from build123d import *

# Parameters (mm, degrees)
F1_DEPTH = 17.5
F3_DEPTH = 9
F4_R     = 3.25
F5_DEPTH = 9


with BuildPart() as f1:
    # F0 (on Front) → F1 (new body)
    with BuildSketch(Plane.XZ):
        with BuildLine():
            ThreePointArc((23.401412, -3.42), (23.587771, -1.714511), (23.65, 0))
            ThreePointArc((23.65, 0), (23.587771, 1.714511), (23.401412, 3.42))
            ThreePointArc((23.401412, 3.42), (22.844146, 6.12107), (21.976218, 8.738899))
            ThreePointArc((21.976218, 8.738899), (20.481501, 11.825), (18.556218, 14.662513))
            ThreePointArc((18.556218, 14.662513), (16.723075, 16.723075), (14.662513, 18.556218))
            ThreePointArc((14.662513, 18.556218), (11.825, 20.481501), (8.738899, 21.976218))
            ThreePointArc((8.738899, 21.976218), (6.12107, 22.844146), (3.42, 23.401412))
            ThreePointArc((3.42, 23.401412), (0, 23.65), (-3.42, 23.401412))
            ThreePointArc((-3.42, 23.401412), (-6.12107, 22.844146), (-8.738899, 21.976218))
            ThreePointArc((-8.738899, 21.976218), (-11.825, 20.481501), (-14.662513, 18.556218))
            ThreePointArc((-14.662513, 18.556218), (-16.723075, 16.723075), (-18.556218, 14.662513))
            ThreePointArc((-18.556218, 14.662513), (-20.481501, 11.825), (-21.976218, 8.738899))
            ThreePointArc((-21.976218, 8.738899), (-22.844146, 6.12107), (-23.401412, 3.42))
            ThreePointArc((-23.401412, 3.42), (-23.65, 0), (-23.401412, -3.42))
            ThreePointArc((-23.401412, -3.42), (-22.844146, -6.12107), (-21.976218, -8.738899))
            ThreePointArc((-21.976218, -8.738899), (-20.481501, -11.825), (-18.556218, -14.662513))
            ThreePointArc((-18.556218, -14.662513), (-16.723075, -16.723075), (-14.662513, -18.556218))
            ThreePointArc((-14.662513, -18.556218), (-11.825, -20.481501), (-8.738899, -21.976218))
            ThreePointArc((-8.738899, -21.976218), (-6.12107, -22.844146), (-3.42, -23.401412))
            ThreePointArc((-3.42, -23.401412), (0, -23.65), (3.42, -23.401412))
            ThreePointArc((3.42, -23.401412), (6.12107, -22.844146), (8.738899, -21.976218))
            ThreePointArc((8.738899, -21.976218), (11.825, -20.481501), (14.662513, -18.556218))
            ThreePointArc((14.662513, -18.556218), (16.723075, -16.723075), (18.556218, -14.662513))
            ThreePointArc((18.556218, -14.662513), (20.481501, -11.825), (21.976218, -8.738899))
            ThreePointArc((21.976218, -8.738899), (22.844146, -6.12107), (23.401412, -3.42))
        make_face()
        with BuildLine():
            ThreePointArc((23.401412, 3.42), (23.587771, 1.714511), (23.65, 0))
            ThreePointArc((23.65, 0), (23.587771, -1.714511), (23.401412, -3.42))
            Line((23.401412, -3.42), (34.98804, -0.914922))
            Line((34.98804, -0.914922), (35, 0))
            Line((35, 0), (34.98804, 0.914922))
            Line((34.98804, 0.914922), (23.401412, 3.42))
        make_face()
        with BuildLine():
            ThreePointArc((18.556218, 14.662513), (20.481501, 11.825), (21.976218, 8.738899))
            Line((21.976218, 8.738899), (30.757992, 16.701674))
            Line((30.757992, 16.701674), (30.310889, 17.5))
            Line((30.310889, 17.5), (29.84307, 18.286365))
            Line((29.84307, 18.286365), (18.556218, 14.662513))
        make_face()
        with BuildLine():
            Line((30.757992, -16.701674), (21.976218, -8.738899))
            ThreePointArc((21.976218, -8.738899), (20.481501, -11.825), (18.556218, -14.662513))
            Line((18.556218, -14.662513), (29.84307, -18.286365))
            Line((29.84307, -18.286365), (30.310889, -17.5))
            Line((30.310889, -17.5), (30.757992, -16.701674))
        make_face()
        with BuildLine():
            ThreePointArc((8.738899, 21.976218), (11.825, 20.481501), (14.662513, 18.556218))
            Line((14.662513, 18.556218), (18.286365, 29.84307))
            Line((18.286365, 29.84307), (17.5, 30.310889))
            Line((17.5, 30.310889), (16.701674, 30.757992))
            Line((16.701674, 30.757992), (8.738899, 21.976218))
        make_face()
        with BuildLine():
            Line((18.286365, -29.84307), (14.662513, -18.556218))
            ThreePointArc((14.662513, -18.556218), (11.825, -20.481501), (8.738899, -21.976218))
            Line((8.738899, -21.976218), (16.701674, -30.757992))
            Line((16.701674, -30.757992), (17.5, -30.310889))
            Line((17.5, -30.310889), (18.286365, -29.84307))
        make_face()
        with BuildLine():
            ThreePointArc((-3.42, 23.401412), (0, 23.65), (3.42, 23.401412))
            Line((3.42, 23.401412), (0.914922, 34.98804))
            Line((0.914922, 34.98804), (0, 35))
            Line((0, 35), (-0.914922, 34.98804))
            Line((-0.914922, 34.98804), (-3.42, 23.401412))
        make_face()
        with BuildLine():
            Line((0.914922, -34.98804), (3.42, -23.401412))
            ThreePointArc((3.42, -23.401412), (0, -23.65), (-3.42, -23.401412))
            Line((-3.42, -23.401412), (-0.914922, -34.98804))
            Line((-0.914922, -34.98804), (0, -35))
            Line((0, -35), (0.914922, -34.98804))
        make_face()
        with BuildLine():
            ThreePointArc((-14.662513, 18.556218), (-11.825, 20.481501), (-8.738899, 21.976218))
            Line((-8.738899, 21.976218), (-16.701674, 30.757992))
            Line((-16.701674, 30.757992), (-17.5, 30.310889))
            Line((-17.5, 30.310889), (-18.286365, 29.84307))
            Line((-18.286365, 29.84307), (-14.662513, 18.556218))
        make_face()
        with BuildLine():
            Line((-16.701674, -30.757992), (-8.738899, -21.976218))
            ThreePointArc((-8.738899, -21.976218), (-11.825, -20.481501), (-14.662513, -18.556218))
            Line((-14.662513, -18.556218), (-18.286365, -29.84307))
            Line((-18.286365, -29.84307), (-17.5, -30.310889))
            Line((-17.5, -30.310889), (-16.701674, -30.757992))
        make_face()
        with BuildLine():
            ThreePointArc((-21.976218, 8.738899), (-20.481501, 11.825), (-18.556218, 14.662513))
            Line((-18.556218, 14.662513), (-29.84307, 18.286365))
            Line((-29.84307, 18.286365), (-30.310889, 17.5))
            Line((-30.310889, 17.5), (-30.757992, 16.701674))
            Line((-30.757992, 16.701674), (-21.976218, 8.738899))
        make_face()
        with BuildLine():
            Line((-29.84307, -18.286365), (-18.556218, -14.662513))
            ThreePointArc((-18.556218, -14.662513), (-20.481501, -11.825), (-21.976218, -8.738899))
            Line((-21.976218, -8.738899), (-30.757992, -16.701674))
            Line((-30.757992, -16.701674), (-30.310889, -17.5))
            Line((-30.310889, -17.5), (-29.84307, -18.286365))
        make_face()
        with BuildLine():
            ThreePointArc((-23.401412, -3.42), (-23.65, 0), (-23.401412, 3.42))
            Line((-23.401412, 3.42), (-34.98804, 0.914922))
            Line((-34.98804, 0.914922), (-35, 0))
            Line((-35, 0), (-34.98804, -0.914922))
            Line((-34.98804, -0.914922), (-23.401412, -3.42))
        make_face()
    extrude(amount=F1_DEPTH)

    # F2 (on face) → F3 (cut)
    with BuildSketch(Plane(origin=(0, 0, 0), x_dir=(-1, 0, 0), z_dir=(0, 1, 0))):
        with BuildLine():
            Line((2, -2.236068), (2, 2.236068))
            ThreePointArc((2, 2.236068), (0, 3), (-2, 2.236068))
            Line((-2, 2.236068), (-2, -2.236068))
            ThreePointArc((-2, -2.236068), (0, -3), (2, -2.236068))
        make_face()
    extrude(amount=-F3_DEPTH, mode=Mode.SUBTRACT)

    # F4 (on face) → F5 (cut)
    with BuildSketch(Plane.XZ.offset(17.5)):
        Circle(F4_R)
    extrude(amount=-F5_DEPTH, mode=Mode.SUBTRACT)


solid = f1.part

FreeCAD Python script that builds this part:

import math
import FreeCAD as App
import Part
import Sketcher
from FreeCAD import Vector

doc = App.newDocument("Part")
params = doc.addObject("Spreadsheet::Sheet", "Params")
for row, (alias, value) in enumerate([
    ("pad1_length", "17.5 mm"),
    ("sketch2_radius", "3 mm"),
    ("pocket1_length", "9 mm"),
    ("sketch3_diameter", "6.5 mm"),
    ("pocket2_length", "9 mm"),
], start=1):
    params.set(f"A{row}", alias)
    params.set(f"B{row}", "=" + value)
    params.setAlias(f"B{row}", alias)

body = doc.addObject("PartDesign::Body", "Body")

# Sketch on XZ plane
sketch1 = body.newObject("Sketcher::SketchObject", "Sketch")
sketch1.AttachmentSupport = (doc.getObject("XZ_Plane"), [""])
sketch1.MapMode = "FlatFace"
sketch1.addGeometry([
    Part.ArcOfCircle(Part.Circle(Vector(0.000017, 0.000007, 0), Vector(0, 0, 1), 23.649982), math.radians(8.314619), math.radians(21.685367)),  # 0
    Part.LineSegment(Vector(21.976218, 8.738899, 0), Vector(30.757992, 16.701674, 0)),  # 1
    Part.LineSegment(Vector(30.757992, 16.701674, 0), Vector(30.310889, 17.5, 0)),  # 2
    Part.LineSegment(Vector(30.310889, 17.5, 0), Vector(29.84307, 18.286365, 0)),  # 3
    Part.LineSegment(Vector(29.84307, 18.286365, 0), Vector(18.556218, 14.662513, 0)),  # 4
    Part.ArcOfCircle(Part.Circle(Vector(-0.000086, -0.000086, 0), Vector(0, 0, 1), 23.650121), math.radians(38.314664), math.radians(51.685336)),  # 5
    Part.LineSegment(Vector(14.662513, 18.556218, 0), Vector(18.286365, 29.84307, 0)),  # 6
    Part.LineSegment(Vector(18.286365, 29.84307, 0), Vector(17.5, 30.310889, 0)),  # 7
    Part.LineSegment(Vector(17.5, 30.310889, 0), Vector(16.701674, 30.757992, 0)),  # 8
    Part.LineSegment(Vector(16.701674, 30.757992, 0), Vector(8.738899, 21.976218, 0)),  # 9
    Part.ArcOfCircle(Part.Circle(Vector(0.000007, 0.000017, 0), Vector(0, 0, 1), 23.649982), math.radians(68.314633), math.radians(81.685381)),  # 10
    Part.LineSegment(Vector(3.42, 23.401412, 0), Vector(0.914922, 34.98804, 0)),  # 11
    Part.LineSegment(Vector(0.914922, 34.98804, 0), Vector(0, 35, 0)),  # 12
    Part.LineSegment(Vector(0, 35, 0), Vector(-0.914922, 34.98804, 0)),  # 13
    Part.LineSegment(Vector(-0.914922, 34.98804, 0), Vector(-3.42, 23.401412, 0)),  # 14
    Part.ArcOfCircle(Part.Circle(Vector(-0.000007, 0.000017, 0), Vector(0, 0, 1), 23.649982), math.radians(98.314619), math.radians(111.685367)),  # 15
    Part.LineSegment(Vector(-8.738899, 21.976218, 0), Vector(-16.701674, 30.757992, 0)),  # 16
    Part.LineSegment(Vector(-16.701674, 30.757992, 0), Vector(-17.5, 30.310889, 0)),  # 17
    Part.LineSegment(Vector(-17.5, 30.310889, 0), Vector(-18.286365, 29.84307, 0)),  # 18
    Part.LineSegment(Vector(-18.286365, 29.84307, 0), Vector(-14.662513, 18.556218, 0)),  # 19
    Part.ArcOfCircle(Part.Circle(Vector(0.000086, -0.000086, 0), Vector(0, 0, 1), 23.650121), math.radians(128.314664), math.radians(141.685336)),  # 20
    Part.LineSegment(Vector(-18.556218, 14.662513, 0), Vector(-29.84307, 18.286365, 0)),  # 21
    Part.LineSegment(Vector(-29.84307, 18.286365, 0), Vector(-30.310889, 17.5, 0)),  # 22
    Part.LineSegment(Vector(-30.310889, 17.5, 0), Vector(-30.757992, 16.701674, 0)),  # 23
    Part.LineSegment(Vector(-30.757992, 16.701674, 0), Vector(-21.976218, 8.738899, 0)),  # 24
    Part.ArcOfCircle(Part.Circle(Vector(-0.000017, 0.000007, 0), Vector(0, 0, 1), 23.649982), math.radians(158.314633), math.radians(171.685381)),  # 25
    Part.LineSegment(Vector(-23.401412, 3.42, 0), Vector(-34.98804, 0.914922, 0)),  # 26
    Part.LineSegment(Vector(-34.98804, 0.914922, 0), Vector(-35, 0, 0)),  # 27
    Part.LineSegment(Vector(-35, 0, 0), Vector(-34.98804, -0.914922, 0)),  # 28
    Part.LineSegment(Vector(-34.98804, -0.914922, 0), Vector(-23.401412, -3.42, 0)),  # 29
    Part.ArcOfCircle(Part.Circle(Vector(-0.000017, -0.000007, 0), Vector(0, 0, 1), 23.649982), math.radians(-171.685381), math.radians(-158.314633)),  # 30
    Part.LineSegment(Vector(-21.976218, -8.738899, 0), Vector(-30.757992, -16.701674, 0)),  # 31
    Part.LineSegment(Vector(-30.757992, -16.701674, 0), Vector(-30.310889, -17.5, 0)),  # 32
    Part.LineSegment(Vector(-30.310889, -17.5, 0), Vector(-29.84307, -18.286365, 0)),  # 33
    Part.LineSegment(Vector(-29.84307, -18.286365, 0), Vector(-18.556218, -14.662513, 0)),  # 34
    Part.ArcOfCircle(Part.Circle(Vector(0.000086, 0.000086, 0), Vector(0, 0, 1), 23.650121), math.radians(-141.685336), math.radians(-128.314664)),  # 35
    Part.LineSegment(Vector(-14.662513, -18.556218, 0), Vector(-18.286365, -29.84307, 0)),  # 36
    Part.LineSegment(Vector(-18.286365, -29.84307, 0), Vector(-17.5, -30.310889, 0)),  # 37
    Part.LineSegment(Vector(-17.5, -30.310889, 0), Vector(-16.701674, -30.757992, 0)),  # 38
    Part.LineSegment(Vector(-16.701674, -30.757992, 0), Vector(-8.738899, -21.976218, 0)),  # 39
    Part.ArcOfCircle(Part.Circle(Vector(-0.000007, -0.000017, 0), Vector(0, 0, 1), 23.649982), math.radians(-111.685367), math.radians(-98.314619)),  # 40
    Part.LineSegment(Vector(-3.42, -23.401412, 0), Vector(-0.914922, -34.98804, 0)),  # 41
    Part.LineSegment(Vector(-0.914922, -34.98804, 0), Vector(0, -35, 0)),  # 42
    Part.LineSegment(Vector(0, -35, 0), Vector(0.914922, -34.98804, 0)),  # 43
    Part.LineSegment(Vector(0.914922, -34.98804, 0), Vector(3.42, -23.401412, 0)),  # 44
    Part.ArcOfCircle(Part.Circle(Vector(0.000007, -0.000017, 0), Vector(0, 0, 1), 23.649982), math.radians(-81.685381), math.radians(-68.314633)),  # 45
    Part.LineSegment(Vector(8.738899, -21.976218, 0), Vector(16.701674, -30.757992, 0)),  # 46
    Part.LineSegment(Vector(16.701674, -30.757992, 0), Vector(17.5, -30.310889, 0)),  # 47
    Part.LineSegment(Vector(17.5, -30.310889, 0), Vector(18.286365, -29.84307, 0)),  # 48
    Part.LineSegment(Vector(18.286365, -29.84307, 0), Vector(14.662513, -18.556218, 0)),  # 49
    Part.ArcOfCircle(Part.Circle(Vector(-0.000086, 0.000086, 0), Vector(0, 0, 1), 23.650121), math.radians(-51.685336), math.radians(-38.314664)),  # 50
    Part.LineSegment(Vector(18.556218, -14.662513, 0), Vector(29.84307, -18.286365, 0)),  # 51
    Part.LineSegment(Vector(29.84307, -18.286365, 0), Vector(30.310889, -17.5, 0)),  # 52
    Part.LineSegment(Vector(30.310889, -17.5, 0), Vector(30.757992, -16.701674, 0)),  # 53
    Part.LineSegment(Vector(30.757992, -16.701674, 0), Vector(21.976218, -8.738899, 0)),  # 54
    Part.ArcOfCircle(Part.Circle(Vector(0.000017, -0.000007, 0), Vector(0, 0, 1), 23.649982), math.radians(-21.685367), math.radians(-8.314619)),  # 55
    Part.LineSegment(Vector(23.401412, -3.42, 0), Vector(34.98804, -0.914922, 0)),  # 56
    Part.LineSegment(Vector(34.98804, -0.914922, 0), Vector(35, 0, 0)),  # 57
    Part.LineSegment(Vector(35, 0, 0), Vector(34.98804, 0.914922, 0)),  # 58
    Part.LineSegment(Vector(34.98804, 0.914922, 0), Vector(23.401412, 3.42, 0)),  # 59
], False)
sketch1.addConstraint([
    Sketcher.Constraint("Coincident", 0, 2, 1, 1),
    Sketcher.Constraint("Coincident", 1, 2, 2, 1),
    Sketcher.Constraint("Coincident", 2, 2, 3, 1),
    Sketcher.Constraint("Coincident", 3, 2, 4, 1),
    Sketcher.Constraint("Coincident", 4, 2, 5, 1),
    Sketcher.Constraint("Coincident", 5, 2, 6, 1),
    Sketcher.Constraint("Coincident", 6, 2, 7, 1),
    Sketcher.Constraint("Coincident", 7, 2, 8, 1),
    Sketcher.Constraint("Coincident", 8, 2, 9, 1),
    Sketcher.Constraint("Coincident", 9, 2, 10, 1),
    Sketcher.Constraint("Coincident", 10, 2, 11, 1),
    Sketcher.Constraint("Coincident", 11, 2, 12, 1),
    Sketcher.Constraint("Coincident", 12, 2, 13, 1),
    Sketcher.Constraint("Coincident", 13, 2, 14, 1),
    Sketcher.Constraint("Coincident", 14, 2, 15, 1),
    Sketcher.Constraint("Coincident", 15, 2, 16, 1),
    Sketcher.Constraint("Coincident", 16, 2, 17, 1),
    Sketcher.Constraint("Coincident", 17, 2, 18, 1),
    Sketcher.Constraint("Coincident", 18, 2, 19, 1),
    Sketcher.Constraint("Coincident", 19, 2, 20, 1),
    Sketcher.Constraint("Coincident", 20, 2, 21, 1),
    Sketcher.Constraint("Coincident", 21, 2, 22, 1),
    Sketcher.Constraint("Coincident", 22, 2, 23, 1),
    Sketcher.Constraint("Coincident", 23, 2, 24, 1),
    Sketcher.Constraint("Coincident", 24, 2, 25, 1),
    Sketcher.Constraint("Coincident", 25, 2, 26, 1),
    Sketcher.Constraint("Coincident", 26, 2, 27, 1),
    Sketcher.Constraint("Coincident", 27, 2, 28, 1),
    Sketcher.Constraint("Coincident", 28, 2, 29, 1),
    Sketcher.Constraint("Coincident", 29, 2, 30, 1),
    Sketcher.Constraint("Coincident", 30, 2, 31, 1),
    Sketcher.Constraint("Coincident", 31, 2, 32, 1),
    Sketcher.Constraint("Coincident", 32, 2, 33, 1),
    Sketcher.Constraint("Coincident", 33, 2, 34, 1),
    Sketcher.Constraint("Coincident", 34, 2, 35, 1),
    Sketcher.Constraint("Coincident", 35, 2, 36, 1),
    Sketcher.Constraint("Coincident", 36, 2, 37, 1),
    Sketcher.Constraint("Coincident", 37, 2, 38, 1),
    Sketcher.Constraint("Coincident", 38, 2, 39, 1),
    Sketcher.Constraint("Coincident", 39, 2, 40, 1),
    Sketcher.Constraint("Coincident", 40, 2, 41, 1),
    Sketcher.Constraint("Coincident", 41, 2, 42, 1),
    Sketcher.Constraint("Coincident", 42, 2, 43, 1),
    Sketcher.Constraint("Coincident", 43, 2, 44, 1),
    Sketcher.Constraint("Coincident", 44, 2, 45, 1),
    Sketcher.Constraint("Coincident", 45, 2, 46, 1),
    Sketcher.Constraint("Coincident", 46, 2, 47, 1),
    Sketcher.Constraint("Coincident", 47, 2, 48, 1),
    Sketcher.Constraint("Coincident", 48, 2, 49, 1),
    Sketcher.Constraint("Coincident", 49, 2, 50, 1),
    Sketcher.Constraint("Coincident", 50, 2, 51, 1),
    Sketcher.Constraint("Coincident", 51, 2, 52, 1),
    Sketcher.Constraint("Coincident", 52, 2, 53, 1),
    Sketcher.Constraint("Coincident", 53, 2, 54, 1),
    Sketcher.Constraint("Coincident", 54, 2, 55, 1),
    Sketcher.Constraint("Coincident", 55, 2, 56, 1),
    Sketcher.Constraint("Coincident", 56, 2, 57, 1),
    Sketcher.Constraint("Coincident", 57, 2, 58, 1),
    Sketcher.Constraint("Coincident", 58, 2, 59, 1),
    Sketcher.Constraint("Coincident", 59, 2, 0, 1),
    Sketcher.Constraint("Equal", 0, 10),
    Sketcher.Constraint("Equal", 10, 15),
    Sketcher.Constraint("Equal", 5, 20),
    Sketcher.Constraint("Equal", 15, 25),
    Sketcher.Constraint("Equal", 25, 30),
    Sketcher.Constraint("Equal", 20, 35),
    Sketcher.Constraint("Equal", 30, 40),
    Sketcher.Constraint("Equal", 40, 45),
    Sketcher.Constraint("Equal", 35, 50),
    Sketcher.Constraint("Equal", 45, 55),
    Sketcher.Constraint("Symmetric", 0, 3, 30, 3, -1, 1),
    Sketcher.Constraint("Symmetric", 5, 3, 35, 3, -1, 1),
    Sketcher.Constraint("Symmetric", 10, 3, 40, 3, -1, 1),
    Sketcher.Constraint("Symmetric", 15, 3, 45, 3, -1, 1),
    Sketcher.Constraint("Symmetric", 20, 3, 50, 3, -1, 1),
    Sketcher.Constraint("Symmetric", 25, 3, 55, 3, -1, 1),
    Sketcher.Constraint("Symmetric", 1, 2, 31, 2, -1, 1),
    Sketcher.Constraint("Symmetric", 2, 2, 32, 2, -1, 1),
    Sketcher.Constraint("Symmetric", 3, 2, 33, 2, -1, 1),
    Sketcher.Constraint("Symmetric", 6, 2, 36, 2, -1, 1),
    Sketcher.Constraint("Symmetric", 7, 2, 37, 2, -1, 1),
    Sketcher.Constraint("Symmetric", 8, 2, 38, 2, -1, 1),
    Sketcher.Constraint("Symmetric", 11, 2, 41, 2, -1, 1),
    Sketcher.Constraint("Symmetric", 12, 2, 42, 2, -1, 1),
    Sketcher.Constraint("Symmetric", 13, 2, 43, 2, -1, 1),
    Sketcher.Constraint("Symmetric", 16, 2, 46, 2, -1, 1),
    Sketcher.Constraint("Symmetric", 17, 2, 47, 2, -1, 1),
    Sketcher.Constraint("Symmetric", 18, 2, 48, 2, -1, 1),
    Sketcher.Constraint("Symmetric", 21, 2, 51, 2, -1, 1),
    Sketcher.Constraint("Symmetric", 22, 2, 52, 2, -1, 1),
    Sketcher.Constraint("Symmetric", 23, 2, 53, 2, -1, 1),
    Sketcher.Constraint("Symmetric", 26, 2, 56, 2, -1, 1),
    Sketcher.Constraint("Symmetric", 27, 2, 57, 2, -1, 1),
    Sketcher.Constraint("Symmetric", 28, 2, 58, 2, -1, 1),
    Sketcher.Constraint("Symmetric", 10, 3, 15, 3, -2),
    Sketcher.Constraint("Symmetric", 5, 3, 20, 3, -2),
    Sketcher.Constraint("Symmetric", 0, 3, 25, 3, -2),
    Sketcher.Constraint("Symmetric", 11, 2, 13, 2, -2),
    Sketcher.Constraint("Symmetric", 8, 2, 16, 2, -2),
    Sketcher.Constraint("Symmetric", 7, 2, 17, 2, -2),
    Sketcher.Constraint("Symmetric", 6, 2, 18, 2, -2),
    Sketcher.Constraint("Symmetric", 3, 2, 21, 2, -2),
    Sketcher.Constraint("Symmetric", 2, 2, 22, 2, -2),
    Sketcher.Constraint("Symmetric", 1, 2, 23, 2, -2),
    Sketcher.Constraint("Symmetric", 28, 2, 56, 2, -2),
    Sketcher.Constraint("PointOnObject", 12, 2, -2),
    Sketcher.Constraint("PointOnObject", 27, 2, -1),
    Sketcher.Constraint("Perpendicular", 1, 16),
    Sketcher.Constraint("Perpendicular", 2, 17),
    Sketcher.Constraint("Perpendicular", 3, 18),
    Sketcher.Constraint("Perpendicular", 4, 19),
    Sketcher.Constraint("Perpendicular", 6, 21),
    Sketcher.Constraint("Perpendicular", 9, 24),
    Sketcher.Constraint("Perpendicular", 11, 26),
    Sketcher.Constraint("Perpendicular", 12, 27),
    Sketcher.Constraint("Perpendicular", 14, 29),
    Sketcher.Constraint("Perpendicular", 16, 31),
    Sketcher.Constraint("Perpendicular", 19, 34),
    Sketcher.Constraint("Perpendicular", 21, 36),
    Sketcher.Constraint("Perpendicular", 24, 39),
    Sketcher.Constraint("Perpendicular", 26, 41),
    Sketcher.Constraint("Perpendicular", 29, 44),
    Sketcher.Constraint("Perpendicular", 31, 46),
    Sketcher.Constraint("Perpendicular", 34, 49),
    Sketcher.Constraint("Perpendicular", 36, 51),
    Sketcher.Constraint("Perpendicular", 39, 54),
    Sketcher.Constraint("Perpendicular", 41, 56),
    Sketcher.Constraint("Perpendicular", 44, 59),
    Sketcher.Constraint("Horizontal", 10, 2, 14, 2),
    Sketcher.Constraint("Horizontal", 9, 2, 15, 2),
    Sketcher.Constraint("Horizontal", 5, 2, 19, 2),
    Sketcher.Constraint("Equal", 2, 3),
    Sketcher.Constraint("Equal", 1, 4),
    Sketcher.Constraint("Equal", 4, 6),
    Sketcher.Constraint("Equal", 3, 7),
    Sketcher.Constraint("Equal", 7, 8),
    Sketcher.Constraint("Equal", 6, 9),
    Sketcher.Constraint("Equal", 9, 11),
    Sketcher.Constraint("Equal", 8, 12),
    Sketcher.Constraint("Equal", 24, 26),
    Sketcher.Constraint("Equal", 23, 27),
    Sketcher.Constraint("DistanceY", -1, 1, 12, 2, 35.0),
    Sketcher.Constraint("DistanceX", 27, 2, -1, 1, 35.0),
    Sketcher.Constraint("DistanceY", -1, 1, 2, 2, 17.5),
    Sketcher.Constraint("DistanceX", -1, 1, 7, 2, 17.5),
    Sketcher.Constraint("DistanceX", -1, 1, 10, 2, 3.42),
    Sketcher.Constraint("Radius", 0, 23.649982),
    Sketcher.Constraint("Radius", 5, 23.650121),
    Sketcher.Constraint("Distance", 2, 0.915),
    Sketcher.Constraint("DistanceY", -1, 1, 0, 2, 8.738899),
    Sketcher.Constraint("Distance", 1, 11.854338),
    Sketcher.Constraint("DistanceX", -1, 1, 0, 2, 21.976218),
    Sketcher.Constraint("DistanceX", -1, 1, 2, 2, 30.310889),
    Sketcher.Constraint("DistanceX", -1, 1, 3, 2, 29.84307),
    Sketcher.Constraint("DistanceX", -1, 1, 4, 2, 18.556218),
    Sketcher.Constraint("DistanceY", -1, 1, 6, 2, 29.84307),
    Sketcher.Constraint("DistanceY", -1, 1, 11, 2, 34.98804),
])
pad1 = body.newObject("PartDesign::Pad", "Pad")
pad1.Profile = sketch1
pad1.setExpression("Length", "Params.pad1_length")

# Sketch on XZ plane
sketch2 = body.newObject("Sketcher::SketchObject", "Sketch001")
sketch2.AttachmentSupport = (doc.getObject("XZ_Plane"), [""])
sketch2.MapMode = "FlatFace"
sketch2.addGeometry([
    Part.LineSegment(Vector(-2, -2.236068, 0), Vector(-2, 2.236068, 0)),
    Part.ArcOfCircle(Part.Circle(Vector(0, 0, 0), Vector(0, 0, 1), 3), math.radians(48.189686), math.radians(131.810314)),
    Part.LineSegment(Vector(2, 2.236068, 0), Vector(2, -2.236068, 0)),
    Part.ArcOfCircle(Part.Circle(Vector(0, 0, 0), Vector(0, 0, 1), 3), math.radians(-131.810314), math.radians(-48.189686)),
], False)
sketch2.addConstraint([
    Sketcher.Constraint("Coincident", 0, 2, 1, 2),
    Sketcher.Constraint("Coincident", 1, 1, 2, 1),
    Sketcher.Constraint("Coincident", 2, 2, 3, 2),
    Sketcher.Constraint("Coincident", 3, 1, 0, 1),
    Sketcher.Constraint("Vertical", 0),
    Sketcher.Constraint("Vertical", 2),
    Sketcher.Constraint("Coincident", 1, 3, -1, 1),
    Sketcher.Constraint("Coincident", 3, 3, -1, 1),
    Sketcher.Constraint("Equal", 1, 3),
    Sketcher.Constraint("Horizontal", 0, 2, 1, 1),
    Sketcher.Constraint("Radius", 1, 3.0),
    Sketcher.Constraint("DistanceX", 0, 2, -1, 1, 2.0),
])
sketch2.setExpression("Constraints[10]", "Params.sketch2_radius")
pocket1 = body.newObject("PartDesign::Pocket", "Pocket")
pocket1.Profile = sketch2
pocket1.setExpression("Length", "Params.pocket1_length")
pocket1.Reversed = True

# Sketch on XZ plane
sketch3 = body.newObject("Sketcher::SketchObject", "Sketch002")
sketch3.AttachmentSupport = (doc.getObject("XZ_Plane"), [""])
sketch3.MapMode = "FlatFace"
sketch3.AttachmentOffset = App.Placement(Vector(0, 0, 17.5), App.Rotation())
sketch3.addGeometry(Part.Circle(Vector(0, 0, 0), Vector(0, 0, 1), 3.25), False)
sketch3.addConstraint([
    Sketcher.Constraint("Coincident", 0, 3, -1, 1),
    Sketcher.Constraint("Diameter", 0, 6.5),
])
sketch3.setExpression("Constraints[1]", "Params.sketch3_diameter")
pocket2 = body.newObject("PartDesign::Pocket", "Pocket001")
pocket2.Profile = sketch3
pocket2.setExpression("Length", "Params.pocket2_length")

doc.recompute()
